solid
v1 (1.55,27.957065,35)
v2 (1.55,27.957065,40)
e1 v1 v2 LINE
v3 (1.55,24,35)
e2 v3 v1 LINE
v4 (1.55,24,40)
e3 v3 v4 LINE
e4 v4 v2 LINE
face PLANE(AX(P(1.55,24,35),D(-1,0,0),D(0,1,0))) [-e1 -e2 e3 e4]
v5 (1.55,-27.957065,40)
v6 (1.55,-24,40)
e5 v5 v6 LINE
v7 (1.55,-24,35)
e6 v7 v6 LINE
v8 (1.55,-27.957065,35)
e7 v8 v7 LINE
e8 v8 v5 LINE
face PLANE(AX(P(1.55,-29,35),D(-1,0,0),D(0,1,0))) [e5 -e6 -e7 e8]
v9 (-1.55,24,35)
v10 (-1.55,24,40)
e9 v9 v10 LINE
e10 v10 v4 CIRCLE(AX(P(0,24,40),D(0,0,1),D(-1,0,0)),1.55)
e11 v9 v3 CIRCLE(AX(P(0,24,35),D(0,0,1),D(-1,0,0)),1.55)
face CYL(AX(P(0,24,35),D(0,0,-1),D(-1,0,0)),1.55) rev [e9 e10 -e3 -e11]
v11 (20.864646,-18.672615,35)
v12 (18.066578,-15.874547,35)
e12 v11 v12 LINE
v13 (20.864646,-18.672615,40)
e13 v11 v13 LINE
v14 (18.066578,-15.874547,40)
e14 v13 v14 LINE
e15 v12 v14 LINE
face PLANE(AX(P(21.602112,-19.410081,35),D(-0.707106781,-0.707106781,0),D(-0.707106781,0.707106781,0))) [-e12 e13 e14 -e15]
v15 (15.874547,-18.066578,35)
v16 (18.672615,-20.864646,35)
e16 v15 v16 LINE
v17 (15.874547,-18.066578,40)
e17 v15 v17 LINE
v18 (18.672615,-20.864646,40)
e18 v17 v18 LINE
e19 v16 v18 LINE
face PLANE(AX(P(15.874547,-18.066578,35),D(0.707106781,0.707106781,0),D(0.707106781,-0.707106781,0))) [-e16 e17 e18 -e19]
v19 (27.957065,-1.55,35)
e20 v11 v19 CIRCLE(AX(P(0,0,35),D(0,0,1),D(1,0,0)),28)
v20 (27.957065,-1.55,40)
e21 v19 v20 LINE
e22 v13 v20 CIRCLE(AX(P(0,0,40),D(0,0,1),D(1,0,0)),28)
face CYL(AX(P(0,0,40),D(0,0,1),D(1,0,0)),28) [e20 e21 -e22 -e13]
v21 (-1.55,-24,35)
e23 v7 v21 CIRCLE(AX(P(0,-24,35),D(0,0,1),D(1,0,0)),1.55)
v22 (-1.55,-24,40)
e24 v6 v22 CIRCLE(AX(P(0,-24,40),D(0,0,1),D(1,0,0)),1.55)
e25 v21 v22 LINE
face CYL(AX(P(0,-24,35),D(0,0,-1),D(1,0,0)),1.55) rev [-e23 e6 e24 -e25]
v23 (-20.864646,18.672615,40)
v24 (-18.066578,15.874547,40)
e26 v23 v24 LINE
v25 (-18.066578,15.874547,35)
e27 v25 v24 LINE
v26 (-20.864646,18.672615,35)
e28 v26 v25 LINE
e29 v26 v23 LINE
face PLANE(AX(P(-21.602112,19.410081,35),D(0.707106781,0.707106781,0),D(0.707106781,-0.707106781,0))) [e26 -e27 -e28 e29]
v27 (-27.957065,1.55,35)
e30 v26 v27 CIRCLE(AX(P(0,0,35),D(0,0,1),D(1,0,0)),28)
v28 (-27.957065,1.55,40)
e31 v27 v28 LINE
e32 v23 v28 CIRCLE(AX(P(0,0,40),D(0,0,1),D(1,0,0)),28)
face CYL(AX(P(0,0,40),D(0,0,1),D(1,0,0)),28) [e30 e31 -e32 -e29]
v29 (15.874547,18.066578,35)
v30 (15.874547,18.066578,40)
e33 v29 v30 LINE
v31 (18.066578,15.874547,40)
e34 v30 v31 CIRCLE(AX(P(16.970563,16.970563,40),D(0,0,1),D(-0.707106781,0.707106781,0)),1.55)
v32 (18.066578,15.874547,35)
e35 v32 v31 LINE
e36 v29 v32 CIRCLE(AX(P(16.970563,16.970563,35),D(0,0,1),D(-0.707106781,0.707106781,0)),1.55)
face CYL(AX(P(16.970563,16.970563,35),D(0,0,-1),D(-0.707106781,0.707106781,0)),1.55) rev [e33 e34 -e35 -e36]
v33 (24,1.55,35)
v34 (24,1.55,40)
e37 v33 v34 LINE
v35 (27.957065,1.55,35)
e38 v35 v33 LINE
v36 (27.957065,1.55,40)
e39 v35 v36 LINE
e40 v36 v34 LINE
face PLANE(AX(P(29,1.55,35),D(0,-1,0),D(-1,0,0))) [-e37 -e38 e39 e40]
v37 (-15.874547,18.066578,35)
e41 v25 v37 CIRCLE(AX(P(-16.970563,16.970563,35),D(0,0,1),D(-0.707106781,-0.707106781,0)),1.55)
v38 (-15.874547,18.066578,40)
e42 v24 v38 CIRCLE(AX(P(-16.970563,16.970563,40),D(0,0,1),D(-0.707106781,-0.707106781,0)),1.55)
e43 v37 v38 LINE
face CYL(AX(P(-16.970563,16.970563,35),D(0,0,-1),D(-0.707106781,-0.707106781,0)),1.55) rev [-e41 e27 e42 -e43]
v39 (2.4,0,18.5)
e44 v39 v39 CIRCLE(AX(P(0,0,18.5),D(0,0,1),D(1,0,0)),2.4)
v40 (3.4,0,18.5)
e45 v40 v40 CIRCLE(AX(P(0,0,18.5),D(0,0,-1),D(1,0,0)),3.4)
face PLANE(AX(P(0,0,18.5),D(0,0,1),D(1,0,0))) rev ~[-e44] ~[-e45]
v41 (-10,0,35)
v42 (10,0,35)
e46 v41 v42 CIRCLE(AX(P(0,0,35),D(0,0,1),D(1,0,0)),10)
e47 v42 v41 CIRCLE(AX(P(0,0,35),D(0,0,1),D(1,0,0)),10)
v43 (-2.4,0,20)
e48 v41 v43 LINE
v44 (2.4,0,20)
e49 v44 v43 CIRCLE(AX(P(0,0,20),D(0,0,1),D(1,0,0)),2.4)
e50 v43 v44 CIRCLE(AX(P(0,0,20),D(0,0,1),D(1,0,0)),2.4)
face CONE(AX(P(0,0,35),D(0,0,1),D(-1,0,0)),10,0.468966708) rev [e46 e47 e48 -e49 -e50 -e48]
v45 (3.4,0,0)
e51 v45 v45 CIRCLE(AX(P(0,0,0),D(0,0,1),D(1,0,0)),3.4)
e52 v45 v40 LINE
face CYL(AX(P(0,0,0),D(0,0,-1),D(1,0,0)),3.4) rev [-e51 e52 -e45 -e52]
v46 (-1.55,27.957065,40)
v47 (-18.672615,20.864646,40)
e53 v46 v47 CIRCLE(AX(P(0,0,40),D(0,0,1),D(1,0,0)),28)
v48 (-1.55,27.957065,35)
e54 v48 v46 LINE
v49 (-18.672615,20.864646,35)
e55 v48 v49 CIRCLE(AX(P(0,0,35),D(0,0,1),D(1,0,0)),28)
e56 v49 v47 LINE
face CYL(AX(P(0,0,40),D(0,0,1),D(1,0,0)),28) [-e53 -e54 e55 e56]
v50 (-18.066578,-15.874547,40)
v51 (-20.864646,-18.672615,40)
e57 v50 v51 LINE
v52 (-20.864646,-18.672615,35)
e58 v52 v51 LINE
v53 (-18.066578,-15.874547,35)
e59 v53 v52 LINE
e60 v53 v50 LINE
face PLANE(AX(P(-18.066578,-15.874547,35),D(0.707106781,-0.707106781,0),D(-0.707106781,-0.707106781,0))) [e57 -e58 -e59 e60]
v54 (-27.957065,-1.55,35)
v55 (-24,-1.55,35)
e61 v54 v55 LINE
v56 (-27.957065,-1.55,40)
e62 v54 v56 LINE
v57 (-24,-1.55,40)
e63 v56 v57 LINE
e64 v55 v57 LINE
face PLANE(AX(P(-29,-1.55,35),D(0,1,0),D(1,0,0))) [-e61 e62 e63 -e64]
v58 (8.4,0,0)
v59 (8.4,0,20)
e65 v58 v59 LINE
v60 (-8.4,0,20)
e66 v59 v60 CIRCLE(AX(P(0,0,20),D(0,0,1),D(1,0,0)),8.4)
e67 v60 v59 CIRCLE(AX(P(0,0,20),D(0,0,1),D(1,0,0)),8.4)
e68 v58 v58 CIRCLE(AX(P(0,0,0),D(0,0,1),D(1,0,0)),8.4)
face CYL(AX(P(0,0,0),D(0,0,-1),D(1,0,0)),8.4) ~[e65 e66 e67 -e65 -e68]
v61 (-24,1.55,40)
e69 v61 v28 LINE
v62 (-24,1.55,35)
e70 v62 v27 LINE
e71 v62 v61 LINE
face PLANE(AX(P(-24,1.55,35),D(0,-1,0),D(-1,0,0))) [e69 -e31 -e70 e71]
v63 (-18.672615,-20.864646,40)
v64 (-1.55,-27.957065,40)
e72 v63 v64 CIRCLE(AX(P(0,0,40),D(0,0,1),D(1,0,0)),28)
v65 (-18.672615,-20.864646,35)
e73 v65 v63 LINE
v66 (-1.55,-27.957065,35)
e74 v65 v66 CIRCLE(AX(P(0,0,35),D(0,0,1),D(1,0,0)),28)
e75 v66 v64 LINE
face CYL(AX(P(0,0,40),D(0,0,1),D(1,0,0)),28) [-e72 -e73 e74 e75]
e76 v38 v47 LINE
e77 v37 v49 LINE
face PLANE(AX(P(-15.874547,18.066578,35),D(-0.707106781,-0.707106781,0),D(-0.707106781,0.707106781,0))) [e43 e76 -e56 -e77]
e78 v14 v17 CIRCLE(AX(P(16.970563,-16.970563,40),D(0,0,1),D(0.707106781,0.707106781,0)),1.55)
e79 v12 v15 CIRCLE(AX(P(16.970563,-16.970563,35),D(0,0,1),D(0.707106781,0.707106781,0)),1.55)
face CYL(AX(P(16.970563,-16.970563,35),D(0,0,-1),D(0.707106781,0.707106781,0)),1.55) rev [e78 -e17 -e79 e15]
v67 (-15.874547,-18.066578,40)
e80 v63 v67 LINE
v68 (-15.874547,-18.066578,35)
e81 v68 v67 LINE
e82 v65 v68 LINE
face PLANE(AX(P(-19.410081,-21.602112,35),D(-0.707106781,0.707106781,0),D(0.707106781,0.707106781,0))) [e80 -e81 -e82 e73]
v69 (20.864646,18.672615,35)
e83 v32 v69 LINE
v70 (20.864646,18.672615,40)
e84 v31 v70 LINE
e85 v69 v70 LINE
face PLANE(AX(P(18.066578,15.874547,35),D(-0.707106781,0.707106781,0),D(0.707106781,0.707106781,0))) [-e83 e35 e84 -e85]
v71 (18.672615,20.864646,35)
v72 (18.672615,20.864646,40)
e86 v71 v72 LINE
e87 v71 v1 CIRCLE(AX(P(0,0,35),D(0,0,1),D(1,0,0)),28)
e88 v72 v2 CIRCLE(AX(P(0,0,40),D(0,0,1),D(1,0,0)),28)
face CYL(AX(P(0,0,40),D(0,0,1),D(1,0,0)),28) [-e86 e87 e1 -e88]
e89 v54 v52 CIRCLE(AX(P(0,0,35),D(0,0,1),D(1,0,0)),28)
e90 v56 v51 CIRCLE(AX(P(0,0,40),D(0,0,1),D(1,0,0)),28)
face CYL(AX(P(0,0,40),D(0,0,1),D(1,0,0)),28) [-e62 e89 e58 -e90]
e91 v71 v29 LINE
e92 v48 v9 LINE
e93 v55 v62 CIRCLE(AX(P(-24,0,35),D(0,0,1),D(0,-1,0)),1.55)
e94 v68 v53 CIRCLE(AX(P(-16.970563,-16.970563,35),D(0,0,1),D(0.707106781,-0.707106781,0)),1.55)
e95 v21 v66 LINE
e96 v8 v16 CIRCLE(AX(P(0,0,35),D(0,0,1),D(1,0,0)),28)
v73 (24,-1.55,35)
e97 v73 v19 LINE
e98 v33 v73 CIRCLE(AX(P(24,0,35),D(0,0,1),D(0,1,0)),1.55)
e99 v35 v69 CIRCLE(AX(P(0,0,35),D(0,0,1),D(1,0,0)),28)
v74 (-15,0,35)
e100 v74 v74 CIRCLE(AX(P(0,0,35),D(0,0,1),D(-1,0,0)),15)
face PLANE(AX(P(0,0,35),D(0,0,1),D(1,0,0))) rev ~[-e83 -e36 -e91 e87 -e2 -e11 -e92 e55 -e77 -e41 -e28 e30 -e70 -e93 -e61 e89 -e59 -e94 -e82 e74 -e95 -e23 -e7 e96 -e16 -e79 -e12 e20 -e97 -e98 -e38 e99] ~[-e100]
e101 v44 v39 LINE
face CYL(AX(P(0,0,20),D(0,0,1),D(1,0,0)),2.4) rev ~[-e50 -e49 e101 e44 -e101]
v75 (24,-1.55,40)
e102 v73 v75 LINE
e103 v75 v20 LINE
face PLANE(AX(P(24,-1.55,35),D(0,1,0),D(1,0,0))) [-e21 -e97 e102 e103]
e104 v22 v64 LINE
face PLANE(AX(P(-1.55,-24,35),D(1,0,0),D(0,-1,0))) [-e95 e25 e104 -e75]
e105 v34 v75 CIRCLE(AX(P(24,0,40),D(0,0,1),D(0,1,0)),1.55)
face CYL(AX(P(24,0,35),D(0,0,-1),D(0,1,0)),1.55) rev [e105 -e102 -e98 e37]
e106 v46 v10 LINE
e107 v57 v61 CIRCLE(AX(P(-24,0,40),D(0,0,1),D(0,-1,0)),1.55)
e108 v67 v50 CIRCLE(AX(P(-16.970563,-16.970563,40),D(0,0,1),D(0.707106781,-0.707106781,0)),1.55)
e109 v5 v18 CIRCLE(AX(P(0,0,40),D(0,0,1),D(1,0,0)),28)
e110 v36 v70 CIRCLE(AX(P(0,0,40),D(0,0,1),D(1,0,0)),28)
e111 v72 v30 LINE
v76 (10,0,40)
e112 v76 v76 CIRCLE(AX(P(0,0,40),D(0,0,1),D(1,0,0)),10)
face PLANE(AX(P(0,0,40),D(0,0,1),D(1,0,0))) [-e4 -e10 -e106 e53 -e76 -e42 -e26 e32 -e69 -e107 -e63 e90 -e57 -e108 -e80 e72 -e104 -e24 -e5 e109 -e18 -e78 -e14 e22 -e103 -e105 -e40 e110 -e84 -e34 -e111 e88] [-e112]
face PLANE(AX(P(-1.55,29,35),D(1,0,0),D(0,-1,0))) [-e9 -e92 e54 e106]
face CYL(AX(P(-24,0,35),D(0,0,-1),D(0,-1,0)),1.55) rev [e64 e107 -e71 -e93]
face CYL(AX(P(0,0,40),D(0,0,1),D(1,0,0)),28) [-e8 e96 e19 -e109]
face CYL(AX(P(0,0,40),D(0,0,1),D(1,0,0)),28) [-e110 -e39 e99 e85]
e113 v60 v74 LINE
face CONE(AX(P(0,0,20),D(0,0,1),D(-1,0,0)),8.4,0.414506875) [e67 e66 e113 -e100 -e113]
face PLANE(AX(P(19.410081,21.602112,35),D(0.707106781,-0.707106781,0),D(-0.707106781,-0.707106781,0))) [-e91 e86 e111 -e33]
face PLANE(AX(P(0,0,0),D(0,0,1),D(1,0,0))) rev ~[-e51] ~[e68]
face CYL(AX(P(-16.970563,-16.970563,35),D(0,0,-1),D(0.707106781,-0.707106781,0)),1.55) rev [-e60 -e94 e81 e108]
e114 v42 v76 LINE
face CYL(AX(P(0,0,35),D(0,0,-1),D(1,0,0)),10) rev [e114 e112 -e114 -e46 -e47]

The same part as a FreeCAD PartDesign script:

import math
import FreeCAD as App
import Part
import Sketcher

V = App.Vector
Q = App.Units.Quantity

doc = App.newDocument("Part")
params = doc.addObject("Spreadsheet::Sheet", "Params")
for row, (alias, value) in enumerate([
    ("sketch1_diameter", "16.8 mm"),
    ("sketch1_diameter2", "6.8 mm"),
    ("pad1_length", "20 mm"),
    ("sketch2_diameter", "16.8 mm"),
    ("sketch2_diameter2", "4.8 mm"),
    ("pad2_length", "1.5 mm"),
    ("sketch3_diameter", "30 mm"),
    ("sketch3_diameter2", "20 mm"),
    ("pad3_length", "5 mm"),
    ("sketch4_width", "5 mm"),
    ("sketch4_width2", "6 mm"),
    ("revolution_angle", "360 deg"),
    ("sketch5_diameter", "56 mm"),
    ("sketch5_diameter2", "20 mm"),
    ("pad4_length", "5 mm"),
    ("sketch6_width", "5 mm"),
    ("sketch6_radius", "1.55 mm"),
    ("sketch6_length", "5 mm"),
    ("pocket1_length", "5 mm"),
], start=1):
    params.set(f"A{row}", alias)
    params.set(f"B{row}", "=" + value)
    params.setAlias(f"B{row}", alias)

body = doc.addObject("PartDesign::Body", "Body")

sketch1 = doc.addObject("Sketcher::SketchObject", "Sketch")
body.addObject(sketch1)
sketch1.AttachmentSupport = (doc.XY_Plane, [""])
sketch1.MapMode = "FlatFace"
sketch1.addGeometry([
    Part.Circle(V(0, 0, 0), V(0, 0, 1), 8.4),
    Part.Circle(V(0, 0, 0), V(0, 0, 1), 3.4),
], False)
sketch1.addConstraint([
    Sketcher.Constraint("Coincident", 0, 3, -1, 1),
    Sketcher.Constraint("Coincident", 1, 3, -1, 1),
    Sketcher.Constraint("Diameter", 0, Q("16.8 mm")),
    Sketcher.Constraint("Diameter", 1, Q("6.8 mm")),
])
sketch1.setExpression("Constraints[2]", "Params.sketch1_diameter")
sketch1.setExpression("Constraints[3]", "Params.sketch1_diameter2")
pad1 = doc.addObject("PartDesign::Pad", "Pad")
body.addObject(pad1)
pad1.Profile = sketch1
pad1.setExpression("Length", "Params.pad1_length")

sketch2 = doc.addObject("Sketcher::SketchObject", "Sketch001")
body.addObject(sketch2)
sketch2.AttachmentSupport = (doc.XY_Plane, [""])
sketch2.MapMode = "FlatFace"
sketch2.AttachmentOffset = App.Placement(V(0, 0, 20), App.Rotation())
sketch2.addGeometry([
    Part.Circle(V(0, 0, 0), V(0, 0, 1), 8.4),
    Part.Circle(V(0, 0, 0), V(0, 0, 1), 2.4),
], False)
sketch2.addConstraint([
    Sketcher.Constraint("Coincident", 0, 3, -1, 1),
    Sketcher.Constraint("Coincident", 1, 3, -1, 1),
    Sketcher.Constraint("Diameter", 0, Q("16.8 mm")),
    Sketcher.Constraint("Diameter", 1, Q("4.8 mm")),
])
sketch2.setExpression("Constraints[2]", "Params.sketch2_diameter")
sketch2.setExpression("Constraints[3]", "Params.sketch2_diameter2")
pad2 = doc.addObject("PartDesign::Pad", "Pad001")
body.addObject(pad2)
pad2.Profile = sketch2
pad2.setExpression("Length", "Params.pad2_length")
pad2.Reversed = True
body2 = doc.addObject("PartDesign::Body", "Body001")

sketch3 = doc.addObject("Sketcher::SketchObject", "Sketch002")
body2.addObject(sketch3)
sketch3.AttachmentSupport = (doc.getObject("XY_Plane001"), [""])
sketch3.MapMode = "FlatFace"
sketch3.AttachmentOffset = App.Placement(V(0, 0, 35), App.Rotation())
sketch3.addGeometry([
    Part.Circle(V(0, 0, 0), V(0, 0, 1), 15),
    Part.Circle(V(0, 0, 0), V(0, 0, 1), 10),
], False)
sketch3.addConstraint([
    Sketcher.Constraint("Coincident", 0, 3, -1, 1),
    Sketcher.Constraint("Coincident", 1, 3, -1, 1),
    Sketcher.Constraint("Diameter", 0, Q("30 mm")),
    Sketcher.Constraint("Diameter", 1, Q("20 mm")),
])
sketch3.setExpression("Constraints[2]", "Params.sketch3_diameter")
sketch3.setExpression("Constraints[3]", "Params.sketch3_diameter2")
pad3 = doc.addObject("PartDesign::Pad", "Pad002")
body2.addObject(pad3)
pad3.Profile = sketch3
pad3.setExpression("Length", "Params.pad3_length")
body.AllowCompound = True
doc.recompute()

boolean = doc.addObject("PartDesign::Boolean", "Boolean")
body.addObject(boolean)
boolean.Type = "Fuse"
boolean.addObjects([body2])

sketch4 = doc.addObject("Sketcher::SketchObject", "Sketch003")
body.addObject(sketch4)
sketch4.AttachmentSupport = (doc.XZ_Plane, [""])
sketch4.MapMode = "FlatFace"
sketch4.addGeometry([
    Part.LineSegment(V(-8.4, 20, 0), V(-15, 35, 0)),
    Part.LineSegment(V(-15, 35, 0), V(-10, 35, 0)),
    Part.LineSegment(V(-10, 35, 0), V(-2.4, 20, 0)),
    Part.LineSegment(V(-2.4, 20, 0), V(-8.4, 20, 0)),
], False)
sketch4.addConstraint([
    Sketcher.Constraint("Coincident", 0, 2, 1, 1),
    Sketcher.Constraint("Coincident", 1, 2, 2, 1),
    Sketcher.Constraint("Coincident", 2, 2, 3, 1),
    Sketcher.Constraint("Coincident", 3, 2, 0, 1),
    Sketcher.Constraint("Horizontal", 1),
    Sketcher.Constraint("Horizontal", 3),
    Sketcher.Constraint("DistanceX", 1, 1, 1, 2, Q("5 mm")),
    Sketcher.Constraint("DistanceX", 3, 2, 3, 1, Q("6 mm")),
    Sketcher.Constraint("DistanceX", 0, 2, -1, 1, Q("15 mm")),
    Sketcher.Constraint("DistanceY", -1, 1, 0, 2, Q("35 mm")),
    Sketcher.Constraint("DistanceY", -1, 1, 2, 2, Q("20 mm")),
    Sketcher.Constraint("DistanceX", 2, 2, -1, 1, Q("2.4 mm")),
])
sketch4.setExpression("Constraints[6]", "Params.sketch4_width")
sketch4.setExpression("Constraints[7]", "Params.sketch4_width2")
revolution = doc.addObject("PartDesign::Revolution", "Revolution")
body.addObject(revolution)
revolution.Profile = sketch4
revolution.ReferenceAxis = (sketch4, ["V_Axis"])
revolution.setExpression("Angle", "Params.revolution_angle")

sketch5 = doc.addObject("Sketcher::SketchObject", "Sketch004")
body.addObject(sketch5)
sketch5.AttachmentSupport = (doc.XY_Plane, [""])
sketch5.MapMode = "FlatFace"
sketch5.AttachmentOffset = App.Placement(V(0, 0, 40), App.Rotation())
sketch5.addGeometry([
    Part.Circle(V(0, 0, 0), V(0, 0, 1), 28),
    Part.Circle(V(0, 0, 0), V(0, 0, 1), 10),
], False)
sketch5.addConstraint([
    Sketcher.Constraint("Coincident", 0, 3, -1, 1),
    Sketcher.Constraint("Coincident", 1, 3, -1, 1),
    Sketcher.Constraint("Diameter", 0, Q("56 mm")),
    Sketcher.Constraint("Diameter", 1, Q("20 mm")),
])
sketch5.setExpression("Constraints[2]", "Params.sketch5_diameter")
sketch5.setExpression("Constraints[3]", "Params.sketch5_diameter2")
pad4 = doc.addObject("PartDesign::Pad", "Pad003")
body.addObject(pad4)
pad4.Profile = sketch5
pad4.setExpression("Length", "Params.pad4_length")
pad4.Reversed = True

sketch6 = doc.addObject("Sketcher::SketchObject", "Sketch005")
body.addObject(sketch6)
sketch6.AttachmentSupport = (doc.XY_Plane, [""])
sketch6.MapMode = "FlatFace"
sketch6.AttachmentOffset = App.Placement(V(0, 0, 35), App.Rotation())
sketch6.addGeometry([
    Part.LineSegment(V(1.55, 29, 0), V(1.55, 24, 0)),
    Part.ArcOfCircle(Part.Circle(V(0, 24, 0), V(0, 0, 1), 1.55), math.radians(180), math.radians(360)),
    Part.LineSegment(V(-1.55, 24, 0), V(-1.55, 29, 0)),
    Part.LineSegment(V(-1.55, 29, 0), V(1.55, 29, 0)),
    Part.LineSegment(V(-18.066578, 15.874547, 0), V(-21.602112, 19.410081, 0)),
    Part.LineSegment(V(-21.602112, 19.410081, 0), V(-19.410081, 21.602112, 0)),
    Part.LineSegment(V(-19.410081, 21.602112, 0), V(-15.874547, 18.066578, 0)),
    Part.ArcOfCircle(Part.Circle(V(-16.970563, 16.970563, 0), V(0, 0, 1), 1.55), math.radians(-135), math.radians(45)),
    Part.LineSegment(V(-24, -1.55, 0), V(-29, -1.55, 0)),
    Part.LineSegment(V(-29, -1.55, 0), V(-29, 1.55, 0)),
    Part.LineSegment(V(-29, 1.55, 0), V(-24, 1.55, 0)),
    Part.ArcOfCircle(Part.Circle(V(-24, 0, 0), V(0, 0, 1), 1.55), math.radians(-90), math.radians(90)),
    Part.LineSegment(V(-15.874547, -18.066578, 0), V(-19.410081, -21.602112, 0)),
    Part.LineSegment(V(-19.410081, -21.602112, 0), V(-21.602112, -19.410081, 0)),
    Part.LineSegment(V(-21.602112, -19.410081, 0), V(-18.066578, -15.874547, 0)),
    Part.ArcOfCircle(Part.Circle(V(-16.970563, -16.970563, 0), V(0, 0, 1), 1.55), math.radians(-45), math.radians(135)),
    Part.LineSegment(V(1.55, -24, 0), V(1.55, -29, 0)),
    Part.LineSegment(V(1.55, -29, 0), V(-1.55, -29, 0)),
    Part.LineSegment(V(-1.55, -29, 0), V(-1.55, -24, 0)),
    Part.ArcOfCircle(Part.Circle(V(0, -24, 0), V(0, 0, 1), 1.55), math.radians(0), math.radians(180)),
    Part.LineSegment(V(18.066578, -15.874547, 0), V(21.602112, -19.410081, 0)),
    Part.LineSegment(V(21.602112, -19.410081, 0), V(19.410081, -21.602112, 0)),
    Part.LineSegment(V(19.410081, -21.602112, 0), V(15.874547, -18.066578, 0)),
    Part.ArcOfCircle(Part.Circle(V(16.970563, -16.970563, 0), V(0, 0, 1), 1.55), math.radians(45), math.radians(225)),
    Part.LineSegment(V(24, 1.55, 0), V(29, 1.55, 0)),
    Part.LineSegment(V(29, 1.55, 0), V(29, -1.55, 0)),
    Part.LineSegment(V(29, -1.55, 0), V(24, -1.55, 0)),
    Part.ArcOfCircle(Part.Circle(V(24, 0, 0), V(0, 0, 1), 1.55), math.radians(90), math.radians(270)),
    Part.LineSegment(V(15.874547, 18.066578, 0), V(19.410081, 21.602112, 0)),
    Part.LineSegment(V(19.410081, 21.602112, 0), V(21.602112, 19.410081, 0)),
    Part.LineSegment(V(21.602112, 19.410081, 0), V(18.066578, 15.874547, 0)),
    Part.ArcOfCircle(Part.Circle(V(16.970563, 16.970563, 0), V(0, 0, 1), 1.55), math.radians(135), math.radians(315)),
], False)
sketch6.addConstraint([
    Sketcher.Constraint("Tangent", 0, 2, 1, 2),
    Sketcher.Constraint("Tangent", 1, 1, 2, 1),
    Sketcher.Constraint("Coincident", 2, 2, 3, 1),
    Sketcher.Constraint("Coincident", 3, 2, 0, 1),
    Sketcher.Constraint("Coincident", 4, 2, 5, 1),
    Sketcher.Constraint("Coincident", 5, 2, 6, 1),
    Sketcher.Constraint("Tangent", 6, 2, 7, 2),
    Sketcher.Constraint("Tangent", 7, 1, 4, 1),
    Sketcher.Constraint("Coincident", 8, 2, 9, 1),
    Sketcher.Constraint("Coincident", 9, 2, 10, 1),
    Sketcher.Constraint("Tangent", 10, 2, 11, 2),
    Sketcher.Constraint("Tangent", 11, 1, 8, 1),
    Sketcher.Constraint("Coincident", 12, 2, 13, 1),
    Sketcher.Constraint("Coincident", 13, 2, 14, 1),
    Sketcher.Constraint("Tangent", 14, 2, 15, 2),
    Sketcher.Constraint("Tangent", 15, 1, 12, 1),
    Sketcher.Constraint("Coincident", 16, 2, 17, 1),
    Sketcher.Constraint("Coincident", 17, 2, 18, 1),
    Sketcher.Constraint("Tangent", 18, 2, 19, 2),
    Sketcher.Constraint("Tangent", 19, 1, 16, 1),
    Sketcher.Constraint("Coincident", 20, 2, 21, 1),
    Sketcher.Constraint("Coincident", 21, 2, 22, 1),
    Sketcher.Constraint("Tangent", 22, 2, 23, 2),
    Sketcher.Constraint("Tangent", 23, 1, 20, 1),
    Sketcher.Constraint("Coincident", 24, 2, 25, 1),
    Sketcher.Constraint("Coincident", 25, 2, 26, 1),
    Sketcher.Constraint("Tangent", 26, 2, 27, 2),
    Sketcher.Constraint("Tangent", 27, 1, 24, 1),
    Sketcher.Constraint("Coincident", 28, 2, 29, 1),
    Sketcher.Constraint("Coincident", 29, 2, 30, 1),
    Sketcher.Constraint("Tangent", 30, 2, 31, 2),
    Sketcher.Constraint("Tangent", 31, 1, 28, 1),
    Sketcher.Constraint("Vertical", 0),
    Sketcher.Constraint("Vertical", 2),
    Sketcher.Constraint("Horizontal", 3),
    Sketcher.Constraint("Horizontal", 8),
    Sketcher.Constraint("Vertical", 9),
    Sketcher.Constraint("Horizontal", 10),
    Sketcher.Constraint("Vertical", 16),
    Sketcher.Constraint("Horizontal", 17),
    Sketcher.Constraint("Vertical", 18),
    Sketcher.Constraint("Horizontal", 24),
    Sketcher.Constraint("Vertical", 25),
    Sketcher.Constraint("Horizontal", 26),
    Sketcher.Constraint("Equal", 1, 7),
    Sketcher.Constraint("Equal", 7, 11),
    Sketcher.Constraint("Equal", 11, 15),
    Sketcher.Constraint("Equal", 15, 19),
    Sketcher.Constraint("Equal", 19, 23),
    Sketcher.Constraint("Equal", 23, 27),
    Sketcher.Constraint("Equal", 27, 31),
    Sketcher.Constraint("Symmetric", 1, 3, 19, 3, -1, 1),
    Sketcher.Constraint("Symmetric", 7, 3, 23, 3, -1, 1),
    Sketcher.Constraint("Symmetric", 11, 3, 27, 3, -1, 1),
    Sketcher.Constraint("Symmetric", 15, 3, 31, 3, -1, 1),
    Sketcher.Constraint("Symmetric", 4, 2, 20, 2, -1, 1),
    Sketcher.Constraint("Symmetric", 5, 2, 21, 2, -1, 1),
    Sketcher.Constraint("Symmetric", 12, 2, 28, 2, -1, 1),
    Sketcher.Constraint("Symmetric", 13, 2, 29, 2, -1, 1),
    Sketcher.Constraint("Symmetric", 15, 3, 23, 3, -2),
    Sketcher.Constraint("Symmetric", 13, 2, 20, 2, -2),
    Sketcher.Constraint("Symmetric", 12, 2, 21, 2, -2),
    Sketcher.Constraint("Symmetric", 9, 2, 24, 2, -2),
    Sketcher.Constraint("Symmetric", 3, 2, 16, 2, -1),
    Sketcher.Constraint("Perpendicular", 4, 5),
    Sketcher.Constraint("Perpendicular", 5, 6),
    Sketcher.Constraint("Perpendicular", 6, 12),
    Sketcher.Constraint("Equal", 26, 0),
    Sketcher.Constraint("DistanceX", 8, 2, 8, 1, Q("5 mm")),
    Sketcher.Constraint("Radius", 1, Q("1.55 mm")),
    Sketcher.Constraint("Distance", 4, Q("5 mm")),
    Sketcher.Constraint("DistanceY", -1, 1, 1, 3, Q("24 mm")),
    Sketcher.Constraint("DistanceX", 11, 3, -1, 1, Q("24 mm")),
    Sketcher.Constraint("DistanceY", -1, 1, 4, 2, Q("19.410081 mm")),
    Sketcher.Constraint("DistanceX", 5, 2, -1, 1, Q("19.410081 mm")),
])
sketch6.setExpression("Constraints[68]", "Params.sketch6_width")
sketch6.setExpression("Constraints[69]", "Params.sketch6_radius")
sketch6.setExpression("Constraints[70]", "Params.sketch6_length")
pocket1 = doc.addObject("PartDesign::Pocket", "Pocket")
body.addObject(pocket1)
pocket1.Profile = sketch6
pocket1.setExpression("Length", "Params.pocket1_length")
pocket1.Reversed = True

doc.recompute()
